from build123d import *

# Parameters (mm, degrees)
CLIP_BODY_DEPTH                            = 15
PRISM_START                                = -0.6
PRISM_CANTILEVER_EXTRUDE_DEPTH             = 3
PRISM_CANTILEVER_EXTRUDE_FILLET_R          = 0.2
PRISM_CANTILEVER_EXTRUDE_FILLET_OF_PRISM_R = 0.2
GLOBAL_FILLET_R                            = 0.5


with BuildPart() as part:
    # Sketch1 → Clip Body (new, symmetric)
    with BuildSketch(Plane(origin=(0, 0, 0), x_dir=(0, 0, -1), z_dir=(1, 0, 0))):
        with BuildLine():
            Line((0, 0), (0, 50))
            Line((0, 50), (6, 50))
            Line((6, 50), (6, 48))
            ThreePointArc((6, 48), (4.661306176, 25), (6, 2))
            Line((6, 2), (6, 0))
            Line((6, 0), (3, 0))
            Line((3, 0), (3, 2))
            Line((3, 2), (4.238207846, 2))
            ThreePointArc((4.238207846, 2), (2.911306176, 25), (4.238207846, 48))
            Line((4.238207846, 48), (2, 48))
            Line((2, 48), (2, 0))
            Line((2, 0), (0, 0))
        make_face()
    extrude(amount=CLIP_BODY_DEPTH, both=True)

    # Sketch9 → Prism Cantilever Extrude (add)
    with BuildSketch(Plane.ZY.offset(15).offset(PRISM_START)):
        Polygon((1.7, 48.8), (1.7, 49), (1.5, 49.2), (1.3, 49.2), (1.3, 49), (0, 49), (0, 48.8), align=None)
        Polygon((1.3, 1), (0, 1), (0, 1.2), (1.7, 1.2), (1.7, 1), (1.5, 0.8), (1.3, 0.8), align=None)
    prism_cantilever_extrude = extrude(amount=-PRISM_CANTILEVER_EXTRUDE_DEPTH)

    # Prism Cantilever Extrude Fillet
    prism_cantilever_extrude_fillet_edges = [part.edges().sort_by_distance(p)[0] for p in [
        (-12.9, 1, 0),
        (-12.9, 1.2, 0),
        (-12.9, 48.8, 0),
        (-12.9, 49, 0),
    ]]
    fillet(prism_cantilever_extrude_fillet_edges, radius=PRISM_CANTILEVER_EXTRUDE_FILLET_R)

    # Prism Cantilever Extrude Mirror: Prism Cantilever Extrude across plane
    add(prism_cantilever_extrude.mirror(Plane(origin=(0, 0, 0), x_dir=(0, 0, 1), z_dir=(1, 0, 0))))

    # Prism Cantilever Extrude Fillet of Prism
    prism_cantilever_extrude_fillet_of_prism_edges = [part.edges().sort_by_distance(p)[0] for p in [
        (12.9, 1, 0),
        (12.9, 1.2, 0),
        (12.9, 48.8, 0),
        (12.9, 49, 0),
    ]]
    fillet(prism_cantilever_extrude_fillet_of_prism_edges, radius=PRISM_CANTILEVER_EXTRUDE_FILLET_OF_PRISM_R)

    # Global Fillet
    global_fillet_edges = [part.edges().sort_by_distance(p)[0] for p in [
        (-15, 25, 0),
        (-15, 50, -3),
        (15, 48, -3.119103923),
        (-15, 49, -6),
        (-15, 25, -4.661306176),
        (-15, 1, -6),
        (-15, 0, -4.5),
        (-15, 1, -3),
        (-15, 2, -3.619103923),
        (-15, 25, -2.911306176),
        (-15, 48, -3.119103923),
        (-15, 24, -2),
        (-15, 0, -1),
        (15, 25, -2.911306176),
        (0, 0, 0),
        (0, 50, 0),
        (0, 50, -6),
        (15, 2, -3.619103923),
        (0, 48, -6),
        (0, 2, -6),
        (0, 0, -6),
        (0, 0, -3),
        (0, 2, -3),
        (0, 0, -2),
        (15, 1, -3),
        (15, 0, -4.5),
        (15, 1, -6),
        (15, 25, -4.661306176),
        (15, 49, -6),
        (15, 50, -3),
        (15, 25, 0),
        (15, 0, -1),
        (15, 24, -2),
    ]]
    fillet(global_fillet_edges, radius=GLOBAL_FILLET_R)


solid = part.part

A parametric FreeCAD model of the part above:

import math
import FreeCAD as App
import Part
import Sketcher

V = App.Vector


def edges_at(feature, points):
    """Names of the edges that pass closest to the given points."""
    edges = feature.Shape.Edges
    near = lambda p: min(range(len(edges)), key=lambda i: edges[i].distToShape(Part.Vertex(*p))[0])
    return sorted({f"Edge{near(p) + 1}" for p in points})

doc = App.newDocument("Part")
params = doc.addObject("Spreadsheet::Sheet", "Params")
for row, (alias, value) in enumerate([
    ("sketch1_radius", "200 mm"),
    ("sketch1_width", "50 mm"),
    ("sketch1_width2", "48 mm"),
    ("sketch1_height", "3 mm"),
    ("sketch1_height2", "6 mm"),
    ("pad1_length", "30 mm"),
    ("sketch2_width", "0.2 mm"),
    ("sketch2_height", "1.3 mm"),
    ("pad2_length", "3 mm"),
    ("fillet_radius", "0.2 mm"),
    ("fillet2_radius", "0.2 mm"),
    ("fillet3_radius", "0.5 mm"),
], start=1):
    params.set(f"A{row}", alias)
    params.set(f"B{row}", "=" + value)
    params.setAlias(f"B{row}", alias)

body = doc.addObject("PartDesign::Body", "Body")

# Sketch on YZ plane
sketch1 = body.newObject("Sketcher::SketchObject", "Sketch")
sketch1.AttachmentSupport = (doc.getObject("YZ_Plane"), [""])
sketch1.MapMode = "FlatFace"
sketch1.addGeometry(Part.LineSegment(V(50, 0, 0), V(0, 0, 0)), False)
sketch1.addGeometry(Part.LineSegment(V(0, 0, 0), V(0, -2, 0)), False)
sketch1.addGeometry(Part.LineSegment(V(0, -2, 0), V(48, -2, 0)), False)
sketch1.addGeometry(Part.LineSegment(V(48, -2, 0), V(48, -4.2, 0)), False)
sketch1.addGeometry(Part.ArcOfCircle(Part.Circle(V(25, -202.9, 0), V(0, 0, 1), 200), math.radians(83.4), math.radians(96.6)), False)
sketch1.addGeometry(Part.LineSegment(V(2, -4.2, 0), V(2, -3, 0)), False)
sketch1.addGeometry(Part.LineSegment(V(2, -3, 0), V(0, -3, 0)), False)
sketch1.addGeometry(Part.LineSegment(V(0, -3, 0), V(0, -6, 0)), False)
sketch1.addGeometry(Part.LineSegment(V(0, -6, 0), V(2, -6, 0)), False)
sketch1.addGeometry(Part.ArcOfCircle(Part.Circle(V(25, -202.9, 0), V(0, 0, 1), 198.2), math.radians(83.34), math.radians(96.66)), False)
sketch1.addGeometry(Part.LineSegment(V(48, -6, 0), V(50, -6, 0)), False)
sketch1.addGeometry(Part.LineSegment(V(50, -6, 0), V(50, 0, 0)), False)
sketch1.addConstraint(Sketcher.Constraint("Coincident", 0, 2, 1, 1))
sketch1.addConstraint(Sketcher.Constraint("Coincident", 1, 2, 2, 1))
sketch1.addConstraint(Sketcher.Constraint("Coincident", 2, 2, 3, 1))
sketch1.addConstraint(Sketcher.Constraint("Coincident", 3, 2, 4, 1))
sketch1.addConstraint(Sketcher.Constraint("Coincident", 4, 2, 5, 1))
sketch1.addConstraint(Sketcher.Constraint("Coincident", 5, 2, 6, 1))
sketch1.addConstraint(Sketcher.Constraint("Coincident", 6, 2, 7, 1))
sketch1.addConstraint(Sketcher.Constraint("Coincident", 7, 2, 8, 1))
sketch1.addConstraint(Sketcher.Constraint("Coincident", 8, 2, 9, 2))
sketch1.addConstraint(Sketcher.Constraint("Coincident", 9, 1, 10, 1))
sketch1.addConstraint(Sketcher.Constraint("Coincident", 10, 2, 11, 1))
sketch1.addConstraint(Sketcher.Constraint("Coincident", 11, 2, 0, 1))
sketch1.addConstraint(Sketcher.Constraint("Horizontal", 0))
sketch1.addConstraint(Sketcher.Constraint("Vertical", 1))
sketch1.addConstraint(Sketcher.Constraint("Horizontal", 2))
sketch1.addConstraint(Sketcher.Constraint("Vertical", 3))
sketch1.addConstraint(Sketcher.Constraint("Vertical", 5))
sketch1.addConstraint(Sketcher.Constraint("Horizontal", 6))
sketch1.addConstraint(Sketcher.Constraint("Vertical", 7))
sketch1.addConstraint(Sketcher.Constraint("Horizontal", 8))
sketch1.addConstraint(Sketcher.Constraint("Horizontal", 10))
sketch1.addConstraint(Sketcher.Constraint("Vertical", 11))
sketch1.addConstraint(Sketcher.Constraint("Coincident", 0, 2, -1, 1))
sketch1.addConstraint(Sketcher.Constraint("Coincident", 9, 3, 4, 3))
sketch1.addConstraint(Sketcher.Constraint("PointOnObject", 6, 2, -2))
sketch1.addConstraint(Sketcher.Constraint("Horizontal", 3, 2, 4, 2))
sketch1.addConstraint(Sketcher.Constraint("Horizontal", 8, 2, 9, 1))
sketch1.addConstraint(Sketcher.Constraint("Vertical", 5, 2, 8, 2))
sketch1.addConstraint(Sketcher.Constraint("Equal", 8, 10))
sketch1.addConstraint(Sketcher.Constraint("Equal", 10, 1))
sketch1.addConstraint(Sketcher.Constraint("Radius", 4, 200.0))
sketch1.addConstraint(Sketcher.Constraint("DistanceX", 0, 2, 0, 1, 50.0))
sketch1.addConstraint(Sketcher.Constraint("DistanceX", 2, 1, 2, 2, 48.0))
sketch1.addConstraint(Sketcher.Constraint("DistanceY", 7, 2, 7, 1, 3.0))
sketch1.addConstraint(Sketcher.Constraint("DistanceY", 11, 1, 11, 2, 6.0))
sketch1.addConstraint(Sketcher.Constraint("Radius", 9, 198.25))
sketch1.setExpression("Constraints[30]", "Params.sketch1_radius")
sketch1.setExpression("Constraints[31]", "Params.sketch1_width")
sketch1.setExpression("Constraints[32]", "Params.sketch1_width2")
sketch1.setExpression("Constraints[33]", "Params.sketch1_height")
sketch1.setExpression("Constraints[34]", "Params.sketch1_height2")
pad1 = body.newObject("PartDesign::Pad", "Pad")
pad1.Profile = sketch1
pad1.setExpression("Length", "Params.pad1_length")
pad1.Midplane = True

# Sketch on YZ plane
sketch2 = body.newObject("Sketcher::SketchObject", "Sketch001")
sketch2.AttachmentSupport = (doc.getObject("YZ_Plane"), [""])
sketch2.MapMode = "FlatFace"
sketch2.AttachmentOffset = App.Placement(V(0, 0, -14.4), App.Rotation())
sketch2.addGeometry(Part.LineSegment(V(48.8, 1.7, 0), V(49, 1.7, 0)), False)
sketch2.addGeometry(Part.LineSegment(V(49, 1.7, 0), V(49.2, 1.5, 0)), False)
sketch2.addGeometry(Part.LineSegment(V(49.2, 1.5, 0), V(49.2, 1.3, 0)), False)
sketch2.addGeometry(Part.LineSegment(V(49.2, 1.3, 0), V(49, 1.3, 0)), False)
sketch2.addGeometry(Part.LineSegment(V(49, 1.3, 0), V(49, 0, 0)), False)
sketch2.addGeometry(Part.LineSegment(V(49, 0, 0), V(48.8, 0, 0)), False)
sketch2.addGeometry(Part.LineSegment(V(48.8, 0, 0), V(48.8, 1.7, 0)), False)
sketch2.addGeometry(Part.LineSegment(V(1, 0, 0), V(1, 1.3, 0)), False)
sketch2.addGeometry(Part.LineSegment(V(1, 1.3, 0), V(0.8, 1.3, 0)), False)
sketch2.addGeometry(Part.LineSegment(V(0.8, 1.3, 0), V(0.8, 1.5, 0)), False)
sketch2.addGeometry(Part.LineSegment(V(0.8, 1.5, 0), V(1, 1.7, 0)), False)
sketch2.addGeometry(Part.LineSegment(V(1, 1.7, 0), V(1.2, 1.7, 0)), False)
sketch2.addGeometry(Part.LineSegment(V(1.2, 1.7, 0), V(1.2, 0, 0)), False)
sketch2.addGeometry(Part.LineSegment(V(1.2, 0, 0), V(1, 0, 0)), False)
sketch2.addConstraint(Sketcher.Constraint("Coincident", 0, 2, 1, 1))
sketch2.addConstraint(Sketcher.Constraint("Coincident", 1, 2, 2, 1))
sketch2.addConstraint(Sketcher.Constraint("Coincident", 2, 2, 3, 1))
sketch2.addConstraint(Sketcher.Constraint("Coincident", 3, 2, 4, 1))
sketch2.addConstraint(Sketcher.Constraint("Coincident", 4, 2, 5, 1))
sketch2.addConstraint(Sketcher.Constraint("Coincident", 5, 2, 6, 1))
sketch2.addConstraint(Sketcher.Constraint("Coincident", 6, 2, 0, 1))
sketch2.addConstraint(Sketcher.Constraint("Coincident", 7, 2, 8, 1))
sketch2.addConstraint(Sketcher.Constraint("Coincident", 8, 2, 9, 1))
sketch2.addConstraint(Sketcher.Constraint("Coincident", 9, 2, 10, 1))
sketch2.addConstraint(Sketcher.Constraint("Coincident", 10, 2, 11, 1))
sketch2.addConstraint(Sketcher.Constraint("Coincident", 11, 2, 12, 1))
sketch2.addConstraint(Sketcher.Constraint("Coincident", 12, 2, 13, 1))
sketch2.addConstraint(Sketcher.Constraint("Coincident", 13, 2, 7, 1))
sketch2.addConstraint(Sketcher.Constraint("Horizontal", 0))
sketch2.addConstraint(Sketcher.Constraint("Vertical", 2))
sketch2.addConstraint(Sketcher.Constraint("Horizontal", 3))
sketch2.addConstraint(Sketcher.Constraint("Vertical", 4))
sketch2.addConstraint(Sketcher.Constraint("Horizontal", 5))
sketch2.addConstraint(Sketcher.Constraint("Vertical", 6))
sketch2.addConstraint(Sketcher.Constraint("Vertical", 7))
sketch2.addConstraint(Sketcher.Constraint("Horizontal", 8))
sketch2.addConstraint(Sketcher.Constraint("Vertical", 9))
sketch2.addConstraint(Sketcher.Constraint("Horizontal", 11))
sketch2.addConstraint(Sketcher.Constraint("Vertical", 12))
sketch2.addConstraint(Sketcher.Constraint("Horizontal", 13))
sketch2.addConstraint(Sketcher.Constraint("PointOnObject", 4, 2, -1))
sketch2.addConstraint(Sketcher.Constraint("PointOnObject", 12, 2, -1))
sketch2.addConstraint(Sketcher.Constraint("Perpendicular", 1, 10))
sketch2.addConstraint(Sketcher.Constraint("Horizontal", 3, 2, 7, 2))
sketch2.addConstraint(Sketcher.Constraint("Horizontal", 1, 2, 9, 2))
sketch2.addConstraint(Sketcher.Constraint("Horizontal", 6, 2, 10, 2))
sketch2.addConstraint(Sketcher.Constraint("Vertical", 0, 2, 3, 2))
sketch2.addConstraint(Sketcher.Constraint("Vertical", 7, 2, 10, 2))
sketch2.addConstraint(Sketcher.Constraint("Equal", 0, 3))
sketch2.addConstraint(Sketcher.Constraint("Equal", 5, 8))
sketch2.addConstraint(Sketcher.Constraint("Equal", 8, 11))
sketch2.addConstraint(Sketcher.Constraint("Equal", 13, 2))
sketch2.addConstraint(Sketcher.Constraint("DistanceX", 0, 1, 0, 2, 0.2))
sketch2.addConstraint(Sketcher.Constraint("DistanceY", 4, 2, 4, 1, 1.3))
sketch2.addConstraint(Sketcher.Constraint("DistanceX", -1, 1, 0, 2, 49.0))
sketch2.addConstraint(Sketcher.Constraint("DistanceX", -1, 1, 7, 2, 1.0))
sketch2.setExpression("Constraints[38]", "Params.sketch2_width")
sketch2.setExpression("Constraints[39]", "Params.sketch2_height")
pad2 = body.newObject("PartDesign::Pad", "Pad001")
pad2.Profile = sketch2
pad2.setExpression("Length", "Params.pad2_length")
doc.recompute()

fillet = body.newObject("PartDesign::Fillet", "Fillet")
fillet.Base = (pad2, edges_at(pad2, [
    (-12.9, 1, 0),
    (-12.9, 1.2, 0),
    (-12.9, 48.8, 0),
    (-12.9, 49, 0),
]))
fillet.setExpression("Radius", "Params.fillet_radius")
doc.recompute()

mirrored = body.newObject("PartDesign::Mirrored", "Mirrored")
mirrored.Originals = [pad2]
mirrored.MirrorPlane = (doc.getObject("YZ_Plane"), [""])
body.Tip = mirrored
doc.recompute()

fillet2 = body.newObject("PartDesign::Fillet", "Fillet001")
fillet2.Base = (mirrored, edges_at(mirrored, [
    (12.9, 1, 0),
    (12.9, 1.2, 0),
    (12.9, 48.8, 0),
    (12.9, 49, 0),
]))
fillet2.setExpression("Radius", "Params.fillet2_radius")
doc.recompute()

fillet3 = body.newObject("PartDesign::Fillet", "Fillet002")
fillet3.Base = (fillet2, edges_at(fillet2, [
    (-15, 25, 0),
    (-15, 50, -3),
    (15, 48, -3.119),
    (-15, 49, -6),
    (-15, 25, -4.661),
    (-15, 1, -6),
    (-15, 0, -4.5),
    (-15, 1, -3),
    (-15, 2, -3.619),
    (-15, 25, -2.911),
    (-15, 48, -3.119),
    (-15, 24, -2),
    (-15, 0, -1),
    (15, 25, -2.911),
    (0, 0, 0),
    (0, 50, 0),
    (0, 50, -6),
    (15, 2, -3.619),
    (0, 48, -6),
    (0, 2, -6),
    (0, 0, -6),
    (0, 0, -3),
    (0, 2, -3),
    (0, 0, -2),
    (15, 1, -3),
    (15, 0, -4.5),
    (15, 1, -6),
    (15, 25, -4.661),
    (15, 49, -6),
    (15, 50, -3),
    (15, 25, 0),
    (15, 0, -1),
    (15, 24, -2),
]))
fillet3.setExpression("Radius", "Params.fillet3_radius")

doc.recompute()
